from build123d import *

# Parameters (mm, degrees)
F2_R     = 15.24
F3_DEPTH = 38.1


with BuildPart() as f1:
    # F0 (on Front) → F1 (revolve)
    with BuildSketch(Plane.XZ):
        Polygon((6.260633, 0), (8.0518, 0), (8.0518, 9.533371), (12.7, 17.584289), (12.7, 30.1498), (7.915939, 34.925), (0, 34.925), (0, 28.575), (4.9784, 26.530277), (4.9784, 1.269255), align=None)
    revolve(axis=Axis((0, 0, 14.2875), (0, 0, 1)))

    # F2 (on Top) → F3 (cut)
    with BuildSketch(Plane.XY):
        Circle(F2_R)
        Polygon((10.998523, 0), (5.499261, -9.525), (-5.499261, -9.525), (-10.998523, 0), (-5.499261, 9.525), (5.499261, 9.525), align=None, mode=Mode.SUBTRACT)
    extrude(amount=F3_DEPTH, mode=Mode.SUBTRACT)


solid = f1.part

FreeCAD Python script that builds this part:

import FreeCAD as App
import Part
import Sketcher

V = App.Vector
Q = App.Units.Quantity

doc = App.newDocument("Part")
body = doc.addObject("PartDesign::Body", "Body")

sketch1 = body.newObject("Sketcher::SketchObject", "Sketch")
sketch1.AttachmentSupport = (doc.getObject("XZ_Plane"), [""])
sketch1.MapMode = "FlatFace"
sketch1.addGeometry(Part.LineSegment(V(6.3, 0, 0), V(8.1, 0, 0)), False)
sketch1.addGeometry(Part.LineSegment(V(8.1, 0, 0), V(8.1, 9.5, 0)), False)
sketch1.addGeometry(Part.LineSegment(V(8.1, 9.5, 0), V(12.7, 17.6, 0)), False)
sketch1.addGeometry(Part.LineSegment(V(12.7, 17.6, 0), V(12.7, 30.1, 0)), False)
sketch1.addGeometry(Part.LineSegment(V(12.7, 30.1, 0), V(7.9, 34.9, 0)), False)
sketch1.addGeometry(Part.LineSegment(V(7.9, 34.9, 0), V(0, 34.9, 0)), False)
sketch1.addGeometry(Part.LineSegment(V(0, 34.9, 0), V(0, 28.6, 0)), False)
sketch1.addGeometry(Part.LineSegment(V(0, 28.6, 0), V(5, 26.5, 0)), False)
sketch1.addGeometry(Part.LineSegment(V(5, 26.5, 0), V(5, 1.3, 0)), False)
sketch1.addGeometry(Part.LineSegment(V(5, 1.3, 0), V(6.3, 0, 0)), False)
sketch1.addConstraint(Sketcher.Constraint("Coincident", 0, 2, 1, 1))
sketch1.addConstraint(Sketcher.Constraint("Coincident", 1, 2, 2, 1))
sketch1.addConstraint(Sketcher.Constraint("Coincident", 2, 2, 3, 1))
sketch1.addConstraint(Sketcher.Constraint("Coincident", 3, 2, 4, 1))
sketch1.addConstraint(Sketcher.Constraint("Coincident", 4, 2, 5, 1))
sketch1.addConstraint(Sketcher.Constraint("Coincident", 5, 2, 6, 1))
sketch1.addConstraint(Sketcher.Constraint("Coincident", 6, 2, 7, 1))
sketch1.addConstraint(Sketcher.Constraint("Coincident", 7, 2, 8, 1))
sketch1.addConstraint(Sketcher.Constraint("Coincident", 8, 2, 9, 1))
sketch1.addConstraint(Sketcher.Constraint("Coincident", 9, 2, 0, 1))
sketch1.addConstraint(Sketcher.Constraint("Horizontal", 0))
sketch1.addConstraint(Sketcher.Constraint("Vertical", 1))
sketch1.addConstraint(Sketcher.Constraint("Vertical", 3))
sketch1.addConstraint(Sketcher.Constraint("Horizontal", 5))
sketch1.addConstraint(Sketcher.Constraint("Vertical", 6))
sketch1.addConstraint(Sketcher.Constraint("Vertical", 8))
sketch1.addConstraint(Sketcher.Constraint("PointOnObject", 0, 2, -1))
sketch1.addConstraint(Sketcher.Constraint("PointOnObject", 5, 2, -2))
sketch1.addConstraint(Sketcher.Constraint("Angle", 2, Q("59.999998 deg")))
sketch1.addConstraint(Sketcher.Constraint("DistanceY", 6, 2, 6, 1, Q("0.25 in")))
sketch1.addConstraint(Sketcher.Constraint("DistanceX", -1, 1, 2, 2, Q("0.5 in")))
sketch1.addConstraint(Sketcher.Constraint("Distance", 2, Q("0.366 in")))
sketch1.addConstraint(Sketcher.Constraint("DistanceY", -1, 1, 3, 2, Q("1.187 in")))
sketch1.addConstraint(Sketcher.Constraint("DistanceY", -1, 1, 4, 2, Q("1.375 in")))
sketch1.addConstraint(Sketcher.Constraint("DistanceX", -1, 1, 7, 2, Q("0.196 in")))
sketch1.addConstraint(Sketcher.Constraint("DistanceX", 5, 2, 5, 1, Q("7.915939 mm")))
sketch1.addConstraint(Sketcher.Constraint("DistanceY", 1, 1, 1, 2, Q("9.533371 mm")))
sketch1.addConstraint(Sketcher.Constraint("DistanceX", 0, 1, 0, 2, Q("1.791167 mm")))
sketch1.addConstraint(Sketcher.Constraint("DistanceY", 8, 2, 8, 1, Q("25.261022 mm")))
sketch1.addConstraint(Sketcher.Constraint("DistanceY", 2, 2, 7, 2, Q("8.945988 mm")))
revolution = body.newObject("PartDesign::Revolution", "Revolution")
revolution.Profile = sketch1
revolution.ReferenceAxis = (sketch1, ["V_Axis"])
revolution.Angle = 360

sketch2 = body.newObject("Sketcher::SketchObject", "Sketch001")
sketch2.AttachmentSupport = (doc.getObject("XY_Plane"), [""])
sketch2.MapMode = "FlatFace"
sketch2.addGeometry(Part.Circle(V(0, 0, 0), V(0, 0, 1), 15), False)
sketch2.addGeometry(Part.LineSegment(V(5, 10, 0), V(11, 0, 0)), False)
sketch2.addGeometry(Part.LineSegment(V(11, 0, 0), V(5, -10, 0)), False)
sketch2.addGeometry(Part.LineSegment(V(5, -10, 0), V(-5, -10, 0)), False)
sketch2.addGeometry(Part.LineSegment(V(-5, -10, 0), V(-11, 0, 0)), False)
sketch2.addGeometry(Part.LineSegment(V(-11, 0, 0), V(-5, 10, 0)), False)
sketch2.addGeometry(Part.LineSegment(V(-5, 10, 0), V(5, 10, 0)), False)
sketch2.addConstraint(Sketcher.Constraint("Coincident", 1, 2, 2, 1))
sketch2.addConstraint(Sketcher.Constraint("Coincident", 2, 2, 3, 1))
sketch2.addConstraint(Sketcher.Constraint("Coincident", 3, 2, 4, 1))
sketch2.addConstraint(Sketcher.Constraint("Coincident", 4, 2, 5, 1))
sketch2.addConstraint(Sketcher.Constraint("Coincident", 5, 2, 6, 1))
sketch2.addConstraint(Sketcher.Constraint("Coincident", 6, 2, 1, 1))
sketch2.addConstraint(Sketcher.Constraint("Horizontal", 3))
sketch2.addConstraint(Sketcher.Constraint("Horizontal", 6))
sketch2.addConstraint(Sketcher.Constraint("Coincident", 0, 3, -1, 1))
sketch2.addConstraint(Sketcher.Constraint("Symmetric", 1, 2, 4, 2, -1, 1))
sketch2.addConstraint(Sketcher.Constraint("Symmetric", 2, 2, 5, 2, -1, 1))
sketch2.addConstraint(Sketcher.Constraint("PointOnObject", 1, 2, -1))
sketch2.addConstraint(Sketcher.Constraint("Parallel", 1, 4))
sketch2.addConstraint(Sketcher.Constraint("Vertical", 3, 2, 5, 2))
sketch2.addConstraint(Sketcher.Constraint("Diameter", 0, Q("1.2 in")))
sketch2.addConstraint(Sketcher.Constraint("Angle", 1, Q("-59.999997 deg")))
sketch2.addConstraint(Sketcher.Constraint("DistanceY", 3, 2, 5, 2, Q("0.75 in")))
sketch2.addConstraint(Sketcher.Constraint("DistanceX", 3, 2, 3, 1, Q("10.998522 mm")))
pocket1 = body.newObject("PartDesign::Pocket", "Pocket")
pocket1.Profile = sketch2
pocket1.Length = Q("1.5 in")
pocket1.Reversed = True

doc.recompute()
